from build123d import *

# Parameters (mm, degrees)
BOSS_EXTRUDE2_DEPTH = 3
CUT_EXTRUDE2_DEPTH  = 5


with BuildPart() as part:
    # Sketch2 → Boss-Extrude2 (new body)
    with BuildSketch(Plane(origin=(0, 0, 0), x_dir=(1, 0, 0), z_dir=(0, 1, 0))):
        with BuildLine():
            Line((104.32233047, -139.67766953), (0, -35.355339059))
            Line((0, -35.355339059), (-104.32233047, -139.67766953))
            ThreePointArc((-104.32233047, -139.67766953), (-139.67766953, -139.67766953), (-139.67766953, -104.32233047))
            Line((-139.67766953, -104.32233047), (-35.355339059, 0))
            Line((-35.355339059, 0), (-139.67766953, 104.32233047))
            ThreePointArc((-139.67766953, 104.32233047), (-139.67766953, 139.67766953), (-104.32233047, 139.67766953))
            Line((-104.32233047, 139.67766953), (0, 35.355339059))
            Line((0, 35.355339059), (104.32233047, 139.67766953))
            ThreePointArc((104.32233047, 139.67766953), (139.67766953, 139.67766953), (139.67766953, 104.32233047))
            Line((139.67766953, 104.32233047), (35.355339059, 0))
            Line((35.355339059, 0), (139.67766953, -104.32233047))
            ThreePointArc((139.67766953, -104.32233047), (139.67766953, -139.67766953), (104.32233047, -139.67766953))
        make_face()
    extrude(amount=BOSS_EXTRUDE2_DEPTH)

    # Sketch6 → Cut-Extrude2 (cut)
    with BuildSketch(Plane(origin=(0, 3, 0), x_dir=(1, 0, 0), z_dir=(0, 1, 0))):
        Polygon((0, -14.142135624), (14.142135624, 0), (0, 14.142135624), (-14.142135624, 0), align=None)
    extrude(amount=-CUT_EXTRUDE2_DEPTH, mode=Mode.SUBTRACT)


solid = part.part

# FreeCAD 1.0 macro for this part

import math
import FreeCAD as App
import Part
import Sketcher

V = App.Vector
Q = App.Units.Quantity

doc = App.newDocument("Part")
params = doc.addObject("Spreadsheet::Sheet", "Params")
for row, (alias, value) in enumerate([
    ("sketch1_radius", "25 mm"),
    ("pad1_length", "3 mm"),
    ("sketch2_length", "20 mm"),
    ("pocket1_length", "5 mm"),
], start=1):
    params.set(f"A{row}", alias)
    params.set(f"B{row}", "=" + value)
    params.setAlias(f"B{row}", alias)

body = doc.addObject("PartDesign::Body", "Body")

# Sketch on XZ plane
sketch1 = body.newObject("Sketcher::SketchObject", "Sketch")
sketch1.AttachmentSupport = (doc.getObject("XZ_Plane"), [""])
sketch1.MapMode = "FlatFace"
sketch1.addGeometry([
    Part.LineSegment(V(0, 35, 0), V(104, 140, 0)),  # 0
    Part.ArcOfCircle(Part.Circle(V(122, 122, 0), V(0, 0, 1), 25), math.radians(-45), math.radians(135)),  # 1
    Part.LineSegment(V(140, 104, 0), V(35, 0, 0)),  # 2
    Part.LineSegment(V(35, 0, 0), V(140, -104, 0)),  # 3
    Part.ArcOfCircle(Part.Circle(V(122, -122, 0), V(0, 0, 1), 25), math.radians(-135), math.radians(45)),  # 4
    Part.LineSegment(V(104, -140, 0), V(0, -35, 0)),  # 5
    Part.LineSegment(V(0, -35, 0), V(-104, -140, 0)),  # 6
    Part.ArcOfCircle(Part.Circle(V(-122, -122, 0), V(0, 0, 1), 25), math.radians(135), math.radians(315)),  # 7
    Part.LineSegment(V(-140, -104, 0), V(-35, 0, 0)),  # 8
    Part.LineSegment(V(-35, 0, 0), V(-140, 104, 0)),  # 9
    Part.ArcOfCircle(Part.Circle(V(-122, 122, 0), V(0, 0, 1), 25), math.radians(45), math.radians(225)),  # 10
    Part.LineSegment(V(-104, 140, 0), V(0, 35, 0)),  # 11
], False)
sketch1.addConstraint([
    Sketcher.Constraint("Tangent", 0, 2, 1, 2),
    Sketcher.Constraint("Tangent", 1, 1, 2, 1),
    Sketcher.Constraint("Coincident", 2, 2, 3, 1),
    Sketcher.Constraint("Tangent", 3, 2, 4, 2),
    Sketcher.Constraint("Tangent", 4, 1, 5, 1),
    Sketcher.Constraint("Coincident", 5, 2, 6, 1),
    Sketcher.Constraint("Tangent", 6, 2, 7, 2),
    Sketcher.Constraint("Tangent", 7, 1, 8, 1),
    Sketcher.Constraint("Coincident", 8, 2, 9, 1),
    Sketcher.Constraint("Tangent", 9, 2, 10, 2),
    Sketcher.Constraint("Tangent", 10, 1, 11, 1),
    Sketcher.Constraint("Coincident", 11, 2, 0, 1),
    Sketcher.Constraint("Equal", 1, 4),
    Sketcher.Constraint("Equal", 4, 7),
    Sketcher.Constraint("Equal", 7, 10),
    Sketcher.Constraint("Symmetric", 1, 3, 7, 3, -1, 1),
    Sketcher.Constraint("Symmetric", 4, 3, 10, 3, -1, 1),
    Sketcher.Constraint("Symmetric", 2, 2, 8, 2, -1, 1),
    Sketcher.Constraint("Symmetric", 5, 2, 11, 2, -1, 1),
    Sketcher.Constraint("Symmetric", 4, 3, 7, 3, -2),
    Sketcher.Constraint("PointOnObject", 2, 2, -1),
    Sketcher.Constraint("PointOnObject", 5, 2, -2),
    Sketcher.Constraint("Parallel", 0, 2),
    Sketcher.Constraint("Perpendicular", 2, 3),
    Sketcher.Constraint("Equal", 0, 2),
    Sketcher.Constraint("Radius", 1, Q("25 mm")),
    Sketcher.Constraint("DistanceX", -1, 1, 1, 3, Q("122 mm")),
])
sketch1.setExpression("Constraints[25]", "Params.sketch1_radius")
pad1 = body.newObject("PartDesign::Pad", "Pad")
pad1.Profile = sketch1
pad1.setExpression("Length", "Params.pad1_length")
pad1.Reversed = True

# Sketch on XZ plane
sketch2 = body.newObject("Sketcher::SketchObject", "Sketch001")
sketch2.AttachmentSupport = (doc.getObject("XZ_Plane"), [""])
sketch2.MapMode = "FlatFace"
sketch2.AttachmentOffset = App.Placement(V(0, 0, -3), App.Rotation())
sketch2.addGeometry([
    Part.LineSegment(V(0, 14, 0), V(14, 0, 0)),
    Part.LineSegment(V(14, 0, 0), V(0, -14, 0)),
    Part.LineSegment(V(0, -14, 0), V(-14, 0, 0)),
    Part.LineSegment(V(-14, 0, 0), V(0, 14, 0)),
], False)
sketch2.addConstraint([
    Sketcher.Constraint("Coincident", 0, 2, 1, 1),
    Sketcher.Constraint("Coincident", 1, 2, 2, 1),
    Sketcher.Constraint("Coincident", 2, 2, 3, 1),
    Sketcher.Constraint("Coincident", 3, 2, 0, 1),
    Sketcher.Constraint("Symmetric", 0, 2, 2, 2, -1, 1),
    Sketcher.Constraint("Symmetric", 1, 2, 3, 2, -1, 1),
    Sketcher.Constraint("PointOnObject", 0, 2, -1),
    Sketcher.Constraint("PointOnObject", 1, 2, -2),
    Sketcher.Constraint("Perpendicular", 0, 1),
    Sketcher.Constraint("Distance", 0, Q("20 mm")),
])
sketch2.setExpression("Constraints[9]", "Params.sketch2_length")
pocket1 = body.newObject("PartDesign::Pocket", "Pocket")
pocket1.Profile = sketch2
pocket1.setExpression("Length", "Params.pocket1_length")
pocket1.Reversed = True

doc.recompute()
